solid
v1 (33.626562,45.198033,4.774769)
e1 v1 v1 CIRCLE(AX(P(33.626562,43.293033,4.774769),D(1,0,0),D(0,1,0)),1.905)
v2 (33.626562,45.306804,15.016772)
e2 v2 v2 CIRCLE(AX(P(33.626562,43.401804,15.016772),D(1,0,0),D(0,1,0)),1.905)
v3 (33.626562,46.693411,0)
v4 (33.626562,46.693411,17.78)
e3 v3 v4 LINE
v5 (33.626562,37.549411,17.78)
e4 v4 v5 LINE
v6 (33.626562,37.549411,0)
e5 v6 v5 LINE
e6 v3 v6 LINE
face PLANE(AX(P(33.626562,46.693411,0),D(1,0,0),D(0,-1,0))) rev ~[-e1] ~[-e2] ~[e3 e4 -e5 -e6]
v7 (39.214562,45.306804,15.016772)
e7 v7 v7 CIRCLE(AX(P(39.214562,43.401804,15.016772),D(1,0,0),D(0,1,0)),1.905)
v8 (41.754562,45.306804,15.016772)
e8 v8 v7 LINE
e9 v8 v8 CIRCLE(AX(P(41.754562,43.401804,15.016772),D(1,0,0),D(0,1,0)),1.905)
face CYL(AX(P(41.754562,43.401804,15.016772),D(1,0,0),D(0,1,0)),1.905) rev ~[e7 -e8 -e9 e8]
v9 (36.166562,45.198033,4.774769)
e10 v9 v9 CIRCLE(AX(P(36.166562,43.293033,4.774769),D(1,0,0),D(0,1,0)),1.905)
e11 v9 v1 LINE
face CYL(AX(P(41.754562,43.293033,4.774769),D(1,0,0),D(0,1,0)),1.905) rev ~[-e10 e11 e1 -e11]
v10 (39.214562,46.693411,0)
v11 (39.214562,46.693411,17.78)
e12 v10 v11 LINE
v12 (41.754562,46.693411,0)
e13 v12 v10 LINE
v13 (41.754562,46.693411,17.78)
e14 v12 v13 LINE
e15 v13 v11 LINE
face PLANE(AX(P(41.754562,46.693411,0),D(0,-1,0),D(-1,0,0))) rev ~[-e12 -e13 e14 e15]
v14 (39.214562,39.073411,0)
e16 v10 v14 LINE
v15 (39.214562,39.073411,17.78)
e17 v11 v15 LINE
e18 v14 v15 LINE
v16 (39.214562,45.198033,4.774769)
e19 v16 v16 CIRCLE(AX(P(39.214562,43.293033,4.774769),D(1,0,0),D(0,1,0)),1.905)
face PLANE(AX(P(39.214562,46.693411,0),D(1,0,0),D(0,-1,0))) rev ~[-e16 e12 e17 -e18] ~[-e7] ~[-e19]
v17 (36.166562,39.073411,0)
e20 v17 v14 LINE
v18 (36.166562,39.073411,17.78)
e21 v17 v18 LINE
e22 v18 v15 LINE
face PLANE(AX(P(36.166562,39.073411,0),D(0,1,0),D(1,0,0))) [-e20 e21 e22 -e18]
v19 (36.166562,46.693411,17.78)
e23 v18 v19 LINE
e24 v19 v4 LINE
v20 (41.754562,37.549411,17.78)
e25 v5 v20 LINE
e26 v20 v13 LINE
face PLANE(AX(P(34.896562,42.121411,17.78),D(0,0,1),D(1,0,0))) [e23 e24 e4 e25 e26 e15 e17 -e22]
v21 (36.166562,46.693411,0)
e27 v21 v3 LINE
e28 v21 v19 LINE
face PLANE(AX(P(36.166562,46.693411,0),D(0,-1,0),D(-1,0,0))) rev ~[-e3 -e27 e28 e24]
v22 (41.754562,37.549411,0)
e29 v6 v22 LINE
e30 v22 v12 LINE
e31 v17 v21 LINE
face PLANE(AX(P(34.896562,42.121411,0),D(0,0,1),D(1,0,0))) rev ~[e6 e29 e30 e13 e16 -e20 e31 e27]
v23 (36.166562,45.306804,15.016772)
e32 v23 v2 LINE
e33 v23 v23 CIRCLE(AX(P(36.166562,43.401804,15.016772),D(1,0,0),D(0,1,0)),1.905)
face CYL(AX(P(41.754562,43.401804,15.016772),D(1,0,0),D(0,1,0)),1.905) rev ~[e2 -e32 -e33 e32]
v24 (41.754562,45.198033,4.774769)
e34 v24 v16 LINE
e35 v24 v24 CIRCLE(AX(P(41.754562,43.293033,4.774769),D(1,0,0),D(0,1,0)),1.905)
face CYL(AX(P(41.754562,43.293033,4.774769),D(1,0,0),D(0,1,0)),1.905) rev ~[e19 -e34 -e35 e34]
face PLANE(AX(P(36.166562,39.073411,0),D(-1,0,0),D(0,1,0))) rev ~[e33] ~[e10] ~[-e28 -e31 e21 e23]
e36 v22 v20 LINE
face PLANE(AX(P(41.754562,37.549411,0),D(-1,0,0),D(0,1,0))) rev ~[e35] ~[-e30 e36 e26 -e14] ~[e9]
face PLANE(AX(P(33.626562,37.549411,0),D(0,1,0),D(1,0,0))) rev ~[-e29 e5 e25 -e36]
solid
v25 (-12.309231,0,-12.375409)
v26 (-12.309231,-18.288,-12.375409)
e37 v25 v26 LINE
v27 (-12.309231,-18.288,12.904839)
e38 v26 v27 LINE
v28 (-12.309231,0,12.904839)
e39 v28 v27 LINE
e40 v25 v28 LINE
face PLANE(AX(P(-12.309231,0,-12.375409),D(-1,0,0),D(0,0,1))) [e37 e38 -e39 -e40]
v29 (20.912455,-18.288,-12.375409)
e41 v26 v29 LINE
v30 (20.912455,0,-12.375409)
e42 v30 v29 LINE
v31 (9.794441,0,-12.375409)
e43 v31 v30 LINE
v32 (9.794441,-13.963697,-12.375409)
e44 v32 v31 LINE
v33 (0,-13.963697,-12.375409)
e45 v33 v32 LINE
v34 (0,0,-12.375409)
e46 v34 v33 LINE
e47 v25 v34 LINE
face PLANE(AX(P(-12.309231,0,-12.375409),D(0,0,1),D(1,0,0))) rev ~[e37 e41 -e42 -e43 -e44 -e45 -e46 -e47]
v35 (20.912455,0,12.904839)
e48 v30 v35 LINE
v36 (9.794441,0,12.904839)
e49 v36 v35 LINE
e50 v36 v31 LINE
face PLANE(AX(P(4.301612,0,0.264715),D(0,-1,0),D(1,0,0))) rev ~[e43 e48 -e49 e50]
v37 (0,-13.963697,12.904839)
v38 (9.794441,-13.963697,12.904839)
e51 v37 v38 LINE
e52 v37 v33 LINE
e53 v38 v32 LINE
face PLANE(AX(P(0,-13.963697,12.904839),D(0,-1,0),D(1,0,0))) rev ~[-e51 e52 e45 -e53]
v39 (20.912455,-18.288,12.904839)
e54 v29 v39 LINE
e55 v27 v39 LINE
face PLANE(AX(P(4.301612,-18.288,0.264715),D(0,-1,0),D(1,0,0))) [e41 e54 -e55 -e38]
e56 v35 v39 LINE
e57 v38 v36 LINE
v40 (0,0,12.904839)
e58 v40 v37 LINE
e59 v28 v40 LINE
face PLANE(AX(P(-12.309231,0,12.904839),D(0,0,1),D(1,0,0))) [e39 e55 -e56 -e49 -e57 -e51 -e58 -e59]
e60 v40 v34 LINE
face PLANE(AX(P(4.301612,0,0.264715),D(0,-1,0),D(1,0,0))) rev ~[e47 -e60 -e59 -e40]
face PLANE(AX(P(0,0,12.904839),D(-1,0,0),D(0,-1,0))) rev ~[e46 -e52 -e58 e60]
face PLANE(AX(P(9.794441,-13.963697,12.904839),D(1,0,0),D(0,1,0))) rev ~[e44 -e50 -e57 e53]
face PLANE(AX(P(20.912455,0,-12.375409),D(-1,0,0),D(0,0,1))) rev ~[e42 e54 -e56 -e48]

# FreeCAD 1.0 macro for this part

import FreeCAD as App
import Part
import Sketcher
Q = App.Units.Quantity

doc = App.newDocument("Part")
body = doc.addObject("PartDesign::Body", "Body")

sketch1 = body.newObject("Sketcher::SketchObject", "Sketch")
sketch1.AttachmentSupport = (doc.getObject("XZ_Plane"), [""])
sketch1.MapMode = "FlatFace"
sketch1.addGeometry([
    Part.LineSegment(App.Vector(-12, 13, 0), App.Vector(-12, -12, 0)),
    Part.LineSegment(App.Vector(-12, -12, 0), App.Vector(21, -12, 0)),
    Part.LineSegment(App.Vector(21, -12, 0), App.Vector(21, 13, 0)),
    Part.LineSegment(App.Vector(21, 13, 0), App.Vector(-12, 13, 0)),
], False)
sketch1.addConstraint([
    Sketcher.Constraint("Coincident", 0, 2, 1, 1),
    Sketcher.Constraint("Coincident", 1, 2, 2, 1),
    Sketcher.Constraint("Coincident", 2, 2, 3, 1),
    Sketcher.Constraint("Coincident", 3, 2, 0, 1),
    Sketcher.Constraint("Vertical", 0),
    Sketcher.Constraint("Horizontal", 1),
    Sketcher.Constraint("Vertical", 2),
    Sketcher.Constraint("Horizontal", 3),
    Sketcher.Constraint("DistanceY", 0, 2, 0, 1, Q("25.280248 mm")),
    Sketcher.Constraint("DistanceX", 1, 1, 1, 2, Q("33.221686 mm")),
    Sketcher.Constraint("DistanceX", 0, 2, -1, 1, Q("12.309231 mm")),
    Sketcher.Constraint("DistanceY", 0, 2, -1, 1, Q("12.375409 mm")),
])
pad1 = body.newObject("PartDesign::Pad", "Pad")
pad1.Profile = sketch1
pad1.Length = Q("0.72 in")

sketch2 = body.newObject("Sketcher::SketchObject", "Sketch001")
sketch2.AttachmentSupport = (doc.getObject("XY_Plane"), [""])
sketch2.MapMode = "FlatFace"
sketch2.AttachmentOffset = App.Placement(App.Vector(0, 0, 12.904839), App.Rotation())
sketch2.addGeometry([
    Part.LineSegment(App.Vector(10, 0, 0), App.Vector(0, 0, 0)),
    Part.LineSegment(App.Vector(0, 0, 0), App.Vector(0, -14, 0)),
    Part.LineSegment(App.Vector(0, -14, 0), App.Vector(10, -14, 0)),
    Part.LineSegment(App.Vector(10, -14, 0), App.Vector(10, 0, 0)),
], False)
sketch2.addConstraint([
    Sketcher.Constraint("Coincident", 0, 2, 1, 1),
    Sketcher.Constraint("Coincident", 1, 2, 2, 1),
    Sketcher.Constraint("Coincident", 2, 2, 3, 1),
    Sketcher.Constraint("Coincident", 3, 2, 0, 1),
    Sketcher.Constraint("Horizontal", 0),
    Sketcher.Constraint("Vertical", 1),
    Sketcher.Constraint("Horizontal", 2),
    Sketcher.Constraint("Vertical", 3),
    Sketcher.Constraint("Coincident", 0, 2, -1, 1),
    Sketcher.Constraint("DistanceX", 0, 2, 0, 1, Q("9.794441 mm")),
    Sketcher.Constraint("DistanceY", 1, 2, 1, 1, Q("13.963697 mm")),
])
pocket1 = body.newObject("PartDesign::Pocket", "Pocket")
pocket1.Profile = sketch2
pocket1.Length = Q("1 in")
body2 = doc.addObject("PartDesign::Body", "Body001")

sketch3 = body2.newObject("Sketcher::SketchObject", "Sketch002")
sketch3.AttachmentSupport = (doc.getObject("XY_Plane001"), [""])
sketch3.MapMode = "FlatFace"
sketch3.addGeometry([
    Part.LineSegment(App.Vector(36.2, 46.7, 0), App.Vector(33.6, 46.7, 0)),
    Part.LineSegment(App.Vector(33.6, 46.7, 0), App.Vector(33.6, 37.5, 0)),
    Part.LineSegment(App.Vector(33.6, 37.5, 0), App.Vector(41.8, 37.5, 0)),
    Part.LineSegment(App.Vector(41.8, 37.5, 0), App.Vector(41.8, 46.7, 0)),
    Part.LineSegment(App.Vector(41.8, 46.7, 0), App.Vector(39.2, 46.7, 0)),
    Part.LineSegment(App.Vector(39.2, 46.7, 0), App.Vector(39.2, 39.1, 0)),
    Part.LineSegment(App.Vector(39.2, 39.1, 0), App.Vector(36.2, 39.1, 0)),
    Part.LineSegment(App.Vector(36.2, 39.1, 0), App.Vector(36.2, 46.7, 0)),
], False)
sketch3.addConstraint([
    Sketcher.Constraint("Coincident", 0, 2, 1, 1),
    Sketcher.Constraint("Coincident", 1, 2, 2, 1),
    Sketcher.Constraint("Coincident", 2, 2, 3, 1),
    Sketcher.Constraint("Coincident", 3, 2, 4, 1),
    Sketcher.Constraint("Coincident", 4, 2, 5, 1),
    Sketcher.Constraint("Coincident", 5, 2, 6, 1),
    Sketcher.Constraint("Coincident", 6, 2, 7, 1),
    Sketcher.Constraint("Coincident", 7, 2, 0, 1),
    Sketcher.Constraint("Horizontal", 0),
    Sketcher.Constraint("Vertical", 1),
    Sketcher.Constraint("Horizontal", 2),
    Sketcher.Constraint("Vertical", 3),
    Sketcher.Constraint("Horizontal", 4),
    Sketcher.Constraint("Vertical", 5),
    Sketcher.Constraint("Horizontal", 6),
    Sketcher.Constraint("Vertical", 7),
    Sketcher.Constraint("Horizontal", 0, 2, 3, 2),
    Sketcher.Constraint("Equal", 0, 4),
    Sketcher.Constraint("DistanceX", 0, 2, 0, 1, Q("0.1 in")),
    Sketcher.Constraint("DistanceY", 5, 2, 5, 1, Q("0.3 in")),
    Sketcher.Constraint("DistanceX", 2, 1, 2, 2, Q("0.32 in")),
    Sketcher.Constraint("DistanceY", 1, 2, 1, 1, Q("0.36 in")),
    Sketcher.Constraint("DistanceY", -1, 1, 0, 2, Q("46.693411 mm")),
    Sketcher.Constraint("DistanceX", -1, 1, 0, 2, Q("33.626562 mm")),
])
pad2 = body2.newObject("PartDesign::Pad", "Pad001")
pad2.Profile = sketch3
pad2.Length = Q("0.7 in")

sketch4 = body2.newObject("Sketcher::SketchObject", "Sketch003")
sketch4.AttachmentSupport = (doc.getObject("YZ_Plane001"), [""])
sketch4.MapMode = "FlatFace"
sketch4.AttachmentOffset = App.Placement(App.Vector(0, 0, 41.754562), App.Rotation())
sketch4.addGeometry([
    Part.Circle(App.Vector(43.4, 15, 0), App.Vector(0, 0, 1), 1.9),
    Part.Circle(App.Vector(43.3, 4.8, 0), App.Vector(0, 0, 1), 1.9),
], False)
sketch4.addConstraint([
    Sketcher.Constraint("Equal", 0, 1),
    Sketcher.Constraint("Diameter", 0, Q("0.15 in")),
    Sketcher.Constraint("DistanceY", -1, 1, 1, 3, Q("4.774769 mm")),
    Sketcher.Constraint("DistanceX", 1, 3, 0, 3, Q("0.108771 mm")),
    Sketcher.Constraint("DistanceX", -1, 1, 0, 3, Q("43.401804 mm")),
    Sketcher.Constraint("DistanceY", -1, 1, 0, 3, Q("15.016772 mm")),
])
pocket2 = body2.newObject("PartDesign::Pocket", "Pocket001")
pocket2.Profile = sketch4
pocket2.Length = Q("1 in")

doc.recompute()
